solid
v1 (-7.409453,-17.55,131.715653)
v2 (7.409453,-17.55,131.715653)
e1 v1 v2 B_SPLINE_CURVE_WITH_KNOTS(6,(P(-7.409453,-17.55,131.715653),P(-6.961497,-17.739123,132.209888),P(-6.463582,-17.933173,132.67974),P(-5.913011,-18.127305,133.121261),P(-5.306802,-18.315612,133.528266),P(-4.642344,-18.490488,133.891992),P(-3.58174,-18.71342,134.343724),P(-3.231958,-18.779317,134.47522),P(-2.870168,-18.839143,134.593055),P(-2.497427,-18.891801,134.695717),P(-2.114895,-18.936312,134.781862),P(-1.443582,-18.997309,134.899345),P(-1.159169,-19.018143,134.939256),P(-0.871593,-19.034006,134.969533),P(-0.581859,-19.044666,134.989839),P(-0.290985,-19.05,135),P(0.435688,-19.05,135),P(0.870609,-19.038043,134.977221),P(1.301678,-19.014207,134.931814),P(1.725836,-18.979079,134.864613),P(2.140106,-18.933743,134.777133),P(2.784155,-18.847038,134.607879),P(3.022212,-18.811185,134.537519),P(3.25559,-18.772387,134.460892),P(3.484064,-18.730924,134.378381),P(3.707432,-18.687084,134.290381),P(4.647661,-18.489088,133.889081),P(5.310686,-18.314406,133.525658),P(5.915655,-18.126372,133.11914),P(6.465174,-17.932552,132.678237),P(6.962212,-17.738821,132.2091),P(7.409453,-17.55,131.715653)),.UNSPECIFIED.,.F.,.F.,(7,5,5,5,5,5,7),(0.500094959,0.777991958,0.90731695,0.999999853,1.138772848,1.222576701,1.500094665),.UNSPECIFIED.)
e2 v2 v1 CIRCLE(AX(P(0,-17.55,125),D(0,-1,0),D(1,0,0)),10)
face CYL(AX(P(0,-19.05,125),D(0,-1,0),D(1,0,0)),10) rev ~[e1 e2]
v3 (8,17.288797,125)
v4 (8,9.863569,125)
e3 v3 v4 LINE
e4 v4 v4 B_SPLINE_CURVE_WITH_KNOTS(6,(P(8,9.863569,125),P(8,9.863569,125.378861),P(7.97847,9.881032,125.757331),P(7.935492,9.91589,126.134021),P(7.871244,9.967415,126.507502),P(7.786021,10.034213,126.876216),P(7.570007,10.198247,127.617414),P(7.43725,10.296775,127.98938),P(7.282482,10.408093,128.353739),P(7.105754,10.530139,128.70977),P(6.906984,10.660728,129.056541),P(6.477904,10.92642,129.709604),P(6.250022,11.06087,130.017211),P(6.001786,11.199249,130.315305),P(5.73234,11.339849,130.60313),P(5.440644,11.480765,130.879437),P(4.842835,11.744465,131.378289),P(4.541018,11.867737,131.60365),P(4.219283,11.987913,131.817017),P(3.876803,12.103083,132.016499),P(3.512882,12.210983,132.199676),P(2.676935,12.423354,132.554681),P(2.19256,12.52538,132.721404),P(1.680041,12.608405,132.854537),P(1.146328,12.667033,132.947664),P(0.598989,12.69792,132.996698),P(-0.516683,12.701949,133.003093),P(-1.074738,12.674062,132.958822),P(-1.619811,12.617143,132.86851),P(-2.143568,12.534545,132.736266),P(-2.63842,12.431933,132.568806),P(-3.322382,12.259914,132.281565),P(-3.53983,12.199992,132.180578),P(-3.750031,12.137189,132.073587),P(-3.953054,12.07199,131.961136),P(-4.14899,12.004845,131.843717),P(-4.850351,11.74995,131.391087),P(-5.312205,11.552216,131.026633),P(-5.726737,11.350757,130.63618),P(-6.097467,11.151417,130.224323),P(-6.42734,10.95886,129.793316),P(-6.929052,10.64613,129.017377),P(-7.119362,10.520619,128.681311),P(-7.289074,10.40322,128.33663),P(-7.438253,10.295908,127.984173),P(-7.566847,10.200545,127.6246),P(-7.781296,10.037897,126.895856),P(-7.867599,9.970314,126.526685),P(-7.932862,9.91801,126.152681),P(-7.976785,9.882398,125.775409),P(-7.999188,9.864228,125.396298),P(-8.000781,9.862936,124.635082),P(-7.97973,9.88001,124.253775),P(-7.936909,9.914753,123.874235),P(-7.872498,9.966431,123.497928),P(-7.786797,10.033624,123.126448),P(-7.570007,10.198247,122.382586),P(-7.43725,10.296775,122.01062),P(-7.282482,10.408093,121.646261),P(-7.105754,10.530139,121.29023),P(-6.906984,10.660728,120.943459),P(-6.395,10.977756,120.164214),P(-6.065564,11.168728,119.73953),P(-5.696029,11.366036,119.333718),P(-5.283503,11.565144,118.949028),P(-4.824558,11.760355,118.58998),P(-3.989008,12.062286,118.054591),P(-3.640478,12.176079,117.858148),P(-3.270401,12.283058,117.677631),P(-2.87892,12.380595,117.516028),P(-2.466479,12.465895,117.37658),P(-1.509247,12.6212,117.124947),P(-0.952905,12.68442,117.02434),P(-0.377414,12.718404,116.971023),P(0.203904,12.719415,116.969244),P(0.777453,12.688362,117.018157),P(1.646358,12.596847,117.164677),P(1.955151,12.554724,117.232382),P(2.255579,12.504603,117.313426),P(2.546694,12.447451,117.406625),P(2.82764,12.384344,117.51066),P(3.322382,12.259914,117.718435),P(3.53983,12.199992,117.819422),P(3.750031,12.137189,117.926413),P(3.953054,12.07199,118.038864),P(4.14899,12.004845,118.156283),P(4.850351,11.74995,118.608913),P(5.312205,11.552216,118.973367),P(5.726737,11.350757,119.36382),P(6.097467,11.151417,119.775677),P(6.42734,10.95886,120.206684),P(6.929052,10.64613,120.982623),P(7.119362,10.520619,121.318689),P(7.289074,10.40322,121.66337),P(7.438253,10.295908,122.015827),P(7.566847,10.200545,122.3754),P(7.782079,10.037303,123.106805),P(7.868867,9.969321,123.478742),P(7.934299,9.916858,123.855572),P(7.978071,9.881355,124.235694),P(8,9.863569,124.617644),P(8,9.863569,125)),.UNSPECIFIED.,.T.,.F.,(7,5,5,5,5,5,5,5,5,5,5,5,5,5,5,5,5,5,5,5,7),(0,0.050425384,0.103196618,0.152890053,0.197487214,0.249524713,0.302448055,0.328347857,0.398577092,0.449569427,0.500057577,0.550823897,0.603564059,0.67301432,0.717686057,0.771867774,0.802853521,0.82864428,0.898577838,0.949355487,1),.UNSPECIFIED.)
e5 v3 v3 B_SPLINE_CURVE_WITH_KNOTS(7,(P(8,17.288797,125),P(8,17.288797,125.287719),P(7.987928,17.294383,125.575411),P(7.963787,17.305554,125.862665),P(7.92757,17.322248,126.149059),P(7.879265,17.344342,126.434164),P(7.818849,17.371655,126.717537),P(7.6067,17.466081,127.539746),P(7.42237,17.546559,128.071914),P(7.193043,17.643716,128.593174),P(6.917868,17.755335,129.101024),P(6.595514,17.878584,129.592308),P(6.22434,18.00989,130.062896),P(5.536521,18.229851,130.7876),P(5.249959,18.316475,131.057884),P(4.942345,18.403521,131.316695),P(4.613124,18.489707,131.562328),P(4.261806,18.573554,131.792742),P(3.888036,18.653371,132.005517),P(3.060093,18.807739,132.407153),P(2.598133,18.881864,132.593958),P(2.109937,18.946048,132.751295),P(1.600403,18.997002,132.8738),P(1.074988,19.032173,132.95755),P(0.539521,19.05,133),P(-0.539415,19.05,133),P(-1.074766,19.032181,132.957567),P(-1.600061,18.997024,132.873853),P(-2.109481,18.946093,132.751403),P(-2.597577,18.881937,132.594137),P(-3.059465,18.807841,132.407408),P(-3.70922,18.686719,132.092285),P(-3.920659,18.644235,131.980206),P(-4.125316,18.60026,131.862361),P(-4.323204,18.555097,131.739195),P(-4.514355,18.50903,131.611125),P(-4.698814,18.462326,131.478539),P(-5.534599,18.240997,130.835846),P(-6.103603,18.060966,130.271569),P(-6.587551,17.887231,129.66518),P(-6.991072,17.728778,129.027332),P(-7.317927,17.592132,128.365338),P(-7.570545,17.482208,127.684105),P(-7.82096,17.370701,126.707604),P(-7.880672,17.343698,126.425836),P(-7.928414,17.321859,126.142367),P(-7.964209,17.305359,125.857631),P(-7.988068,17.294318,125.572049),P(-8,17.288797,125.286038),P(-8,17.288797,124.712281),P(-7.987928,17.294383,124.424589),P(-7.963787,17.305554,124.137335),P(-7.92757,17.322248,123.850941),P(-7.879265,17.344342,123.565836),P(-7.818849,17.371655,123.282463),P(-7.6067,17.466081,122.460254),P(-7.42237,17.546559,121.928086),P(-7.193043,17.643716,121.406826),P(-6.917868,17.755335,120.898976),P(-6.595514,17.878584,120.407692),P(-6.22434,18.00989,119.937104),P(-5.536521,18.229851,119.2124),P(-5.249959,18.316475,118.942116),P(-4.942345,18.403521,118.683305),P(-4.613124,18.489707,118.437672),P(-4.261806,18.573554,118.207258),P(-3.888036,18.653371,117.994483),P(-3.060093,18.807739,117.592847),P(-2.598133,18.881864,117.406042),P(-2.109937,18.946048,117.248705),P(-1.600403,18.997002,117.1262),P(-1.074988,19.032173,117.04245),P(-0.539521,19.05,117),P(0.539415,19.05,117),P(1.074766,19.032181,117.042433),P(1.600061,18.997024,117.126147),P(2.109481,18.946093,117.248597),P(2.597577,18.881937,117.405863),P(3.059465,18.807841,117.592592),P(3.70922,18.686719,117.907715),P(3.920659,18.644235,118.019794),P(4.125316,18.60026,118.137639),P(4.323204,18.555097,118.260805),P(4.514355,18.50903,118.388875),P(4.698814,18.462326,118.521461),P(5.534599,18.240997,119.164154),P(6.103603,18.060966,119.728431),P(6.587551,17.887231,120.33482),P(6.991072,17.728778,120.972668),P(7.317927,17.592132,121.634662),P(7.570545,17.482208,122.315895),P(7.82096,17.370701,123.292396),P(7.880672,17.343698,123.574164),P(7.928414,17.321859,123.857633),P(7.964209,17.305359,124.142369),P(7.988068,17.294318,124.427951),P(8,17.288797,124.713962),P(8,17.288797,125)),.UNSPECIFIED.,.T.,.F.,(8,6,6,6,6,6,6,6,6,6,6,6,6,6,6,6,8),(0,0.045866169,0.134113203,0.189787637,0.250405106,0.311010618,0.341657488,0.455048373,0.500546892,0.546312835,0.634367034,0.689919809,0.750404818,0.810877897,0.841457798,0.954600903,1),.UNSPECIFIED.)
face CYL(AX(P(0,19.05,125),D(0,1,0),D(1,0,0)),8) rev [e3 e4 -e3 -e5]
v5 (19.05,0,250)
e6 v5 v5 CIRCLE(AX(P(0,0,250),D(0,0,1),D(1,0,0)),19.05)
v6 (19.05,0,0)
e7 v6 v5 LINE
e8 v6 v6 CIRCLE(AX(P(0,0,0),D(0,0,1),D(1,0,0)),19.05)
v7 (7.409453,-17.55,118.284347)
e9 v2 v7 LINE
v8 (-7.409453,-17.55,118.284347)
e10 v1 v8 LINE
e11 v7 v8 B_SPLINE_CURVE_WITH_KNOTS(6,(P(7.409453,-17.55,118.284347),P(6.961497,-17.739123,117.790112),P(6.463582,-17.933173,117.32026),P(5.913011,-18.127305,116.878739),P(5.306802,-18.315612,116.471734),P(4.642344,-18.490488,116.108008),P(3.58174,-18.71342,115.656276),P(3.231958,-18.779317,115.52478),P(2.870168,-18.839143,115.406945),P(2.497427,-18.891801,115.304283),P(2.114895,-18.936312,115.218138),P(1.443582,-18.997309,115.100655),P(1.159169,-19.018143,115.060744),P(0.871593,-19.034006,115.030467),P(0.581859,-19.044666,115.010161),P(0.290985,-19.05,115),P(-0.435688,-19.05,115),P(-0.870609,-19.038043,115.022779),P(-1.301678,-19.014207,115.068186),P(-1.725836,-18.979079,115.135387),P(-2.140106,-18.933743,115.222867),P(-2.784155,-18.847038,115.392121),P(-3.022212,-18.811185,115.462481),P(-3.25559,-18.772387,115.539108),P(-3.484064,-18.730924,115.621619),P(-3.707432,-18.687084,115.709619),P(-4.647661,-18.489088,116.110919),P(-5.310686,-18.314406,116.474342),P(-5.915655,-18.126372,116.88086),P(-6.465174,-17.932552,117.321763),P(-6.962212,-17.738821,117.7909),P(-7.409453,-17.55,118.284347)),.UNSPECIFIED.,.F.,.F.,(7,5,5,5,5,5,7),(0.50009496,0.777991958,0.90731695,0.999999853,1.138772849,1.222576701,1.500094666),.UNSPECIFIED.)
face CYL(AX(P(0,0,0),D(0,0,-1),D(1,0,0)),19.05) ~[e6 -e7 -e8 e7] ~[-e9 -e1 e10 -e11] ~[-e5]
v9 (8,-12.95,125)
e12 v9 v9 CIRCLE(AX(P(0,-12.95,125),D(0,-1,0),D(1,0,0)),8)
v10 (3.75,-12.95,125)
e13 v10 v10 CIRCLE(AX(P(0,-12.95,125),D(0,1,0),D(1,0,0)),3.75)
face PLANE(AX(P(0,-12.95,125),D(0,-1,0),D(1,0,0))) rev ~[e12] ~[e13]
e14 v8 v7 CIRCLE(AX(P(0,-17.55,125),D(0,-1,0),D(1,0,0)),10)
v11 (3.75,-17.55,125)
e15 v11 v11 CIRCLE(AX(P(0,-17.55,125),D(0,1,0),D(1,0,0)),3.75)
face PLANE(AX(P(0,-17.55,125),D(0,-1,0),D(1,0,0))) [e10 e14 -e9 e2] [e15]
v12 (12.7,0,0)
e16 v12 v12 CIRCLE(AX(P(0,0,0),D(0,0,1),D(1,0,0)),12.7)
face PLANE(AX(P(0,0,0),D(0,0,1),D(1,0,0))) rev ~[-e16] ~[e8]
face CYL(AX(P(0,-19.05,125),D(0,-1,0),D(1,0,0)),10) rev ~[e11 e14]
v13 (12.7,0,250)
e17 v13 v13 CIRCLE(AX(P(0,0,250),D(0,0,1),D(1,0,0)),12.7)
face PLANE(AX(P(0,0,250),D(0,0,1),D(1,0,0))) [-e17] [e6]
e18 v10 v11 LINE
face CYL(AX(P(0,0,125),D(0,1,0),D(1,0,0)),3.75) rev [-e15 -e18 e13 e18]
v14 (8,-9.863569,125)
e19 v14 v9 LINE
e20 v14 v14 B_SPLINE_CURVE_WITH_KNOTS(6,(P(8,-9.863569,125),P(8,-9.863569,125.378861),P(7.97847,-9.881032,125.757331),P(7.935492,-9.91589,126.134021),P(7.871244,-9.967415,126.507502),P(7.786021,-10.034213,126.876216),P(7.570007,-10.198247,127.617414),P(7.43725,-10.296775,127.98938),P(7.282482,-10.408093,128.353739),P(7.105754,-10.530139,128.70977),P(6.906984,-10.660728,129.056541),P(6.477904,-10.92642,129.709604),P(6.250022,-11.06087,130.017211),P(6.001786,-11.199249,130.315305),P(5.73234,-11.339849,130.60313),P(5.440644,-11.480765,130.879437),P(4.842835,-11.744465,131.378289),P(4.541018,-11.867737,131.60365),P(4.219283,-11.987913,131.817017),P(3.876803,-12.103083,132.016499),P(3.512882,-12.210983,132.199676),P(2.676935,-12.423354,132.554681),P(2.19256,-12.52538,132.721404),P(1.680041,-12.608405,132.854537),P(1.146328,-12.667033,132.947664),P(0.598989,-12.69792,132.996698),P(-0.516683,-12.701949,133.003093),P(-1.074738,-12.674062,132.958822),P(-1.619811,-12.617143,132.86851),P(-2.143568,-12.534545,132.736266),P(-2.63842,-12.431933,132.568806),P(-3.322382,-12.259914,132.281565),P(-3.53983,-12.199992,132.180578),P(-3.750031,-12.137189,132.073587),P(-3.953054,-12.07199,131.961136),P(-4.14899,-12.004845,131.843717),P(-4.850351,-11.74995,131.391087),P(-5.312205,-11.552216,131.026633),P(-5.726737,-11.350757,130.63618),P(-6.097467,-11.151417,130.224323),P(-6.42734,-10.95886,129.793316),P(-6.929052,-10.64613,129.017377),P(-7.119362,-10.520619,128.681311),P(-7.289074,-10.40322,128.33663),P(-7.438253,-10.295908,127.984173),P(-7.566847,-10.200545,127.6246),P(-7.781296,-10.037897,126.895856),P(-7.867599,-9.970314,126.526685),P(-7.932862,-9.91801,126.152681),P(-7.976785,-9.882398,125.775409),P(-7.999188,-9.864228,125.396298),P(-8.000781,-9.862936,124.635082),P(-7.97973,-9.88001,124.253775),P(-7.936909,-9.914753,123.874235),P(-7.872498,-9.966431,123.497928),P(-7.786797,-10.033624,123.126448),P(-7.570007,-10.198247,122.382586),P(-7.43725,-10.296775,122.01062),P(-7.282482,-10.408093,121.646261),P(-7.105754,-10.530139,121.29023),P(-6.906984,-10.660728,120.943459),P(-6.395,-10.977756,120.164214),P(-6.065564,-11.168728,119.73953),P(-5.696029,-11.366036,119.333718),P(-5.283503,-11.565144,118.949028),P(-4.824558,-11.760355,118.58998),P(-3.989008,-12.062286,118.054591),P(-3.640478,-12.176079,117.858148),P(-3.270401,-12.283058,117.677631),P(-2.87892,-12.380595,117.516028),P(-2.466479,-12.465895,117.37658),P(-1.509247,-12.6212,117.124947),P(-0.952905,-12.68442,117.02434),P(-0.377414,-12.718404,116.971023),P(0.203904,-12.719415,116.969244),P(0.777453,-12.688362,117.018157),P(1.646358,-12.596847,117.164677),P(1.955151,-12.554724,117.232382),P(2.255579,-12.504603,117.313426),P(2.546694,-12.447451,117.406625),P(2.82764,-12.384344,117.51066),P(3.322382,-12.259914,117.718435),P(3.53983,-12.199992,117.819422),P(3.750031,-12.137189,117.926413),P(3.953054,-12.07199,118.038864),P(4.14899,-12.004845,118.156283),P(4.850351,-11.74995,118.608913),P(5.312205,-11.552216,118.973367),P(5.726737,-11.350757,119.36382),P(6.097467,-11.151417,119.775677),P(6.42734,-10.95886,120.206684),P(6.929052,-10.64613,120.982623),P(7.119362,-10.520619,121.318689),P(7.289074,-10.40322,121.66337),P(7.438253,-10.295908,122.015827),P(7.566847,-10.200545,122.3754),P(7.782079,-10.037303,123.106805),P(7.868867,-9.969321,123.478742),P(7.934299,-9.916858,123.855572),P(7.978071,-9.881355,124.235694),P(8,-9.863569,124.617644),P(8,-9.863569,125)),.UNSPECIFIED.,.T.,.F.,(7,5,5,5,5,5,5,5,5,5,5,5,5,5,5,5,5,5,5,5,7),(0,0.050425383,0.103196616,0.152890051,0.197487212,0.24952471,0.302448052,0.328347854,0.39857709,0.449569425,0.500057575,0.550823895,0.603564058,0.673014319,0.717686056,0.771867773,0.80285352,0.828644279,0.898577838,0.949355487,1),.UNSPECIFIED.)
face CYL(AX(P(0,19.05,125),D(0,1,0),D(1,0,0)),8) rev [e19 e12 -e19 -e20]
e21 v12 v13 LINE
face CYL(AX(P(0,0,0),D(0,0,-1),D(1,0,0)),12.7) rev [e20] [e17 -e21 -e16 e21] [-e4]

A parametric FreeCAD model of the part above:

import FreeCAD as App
import Part
import Sketcher

doc = App.newDocument("Part")
body = doc.addObject("PartDesign::Body", "Body")

# Sketch on XY plane
sketch1 = doc.addObject("Sketcher::SketchObject", "Sketch")
body.addObject(sketch1)
sketch1.AttachmentSupport = (doc.XY_Plane, [""])
sketch1.MapMode = "FlatFace"
sketch1.addGeometry([
    Part.Circle(App.Vector(0, 0, 0), App.Vector(0, 0, 1), 19),
    Part.Circle(App.Vector(0, 0, 0), App.Vector(0, 0, 1), 13),
], False)
sketch1.addConstraint([
    Sketcher.Constraint("Coincident", 0, 3, -1, 1),
    Sketcher.Constraint("Coincident", 1, 3, -1, 1),
    Sketcher.Constraint("Diameter", 0, 38.1),
    Sketcher.Constraint("Diameter", 1, 25.4),
])
pad1 = doc.addObject("PartDesign::Pad", "Pad")
body.addObject(pad1)
pad1.Profile = sketch1
pad1.Length = 250

# Sketch on XZ plane
sketch2 = doc.addObject("Sketcher::SketchObject", "Sketch001")
body.addObject(sketch2)
sketch2.AttachmentSupport = (doc.XZ_Plane, [""])
sketch2.MapMode = "FlatFace"
sketch2.addGeometry(Part.Circle(App.Vector(0, 125, 0), App.Vector(0, 0, 1), 3.8), False)
sketch2.addConstraint([
    Sketcher.Constraint("PointOnObject", 0, 3, -2),
    Sketcher.Constraint("Diameter", 0, 7.5),
    Sketcher.Constraint("DistanceY", -1, 1, 0, 3, 125.0),
])
pocket1 = doc.addObject("PartDesign::Pocket", "Pocket")
body.addObject(pocket1)
pocket1.Profile = sketch2
pocket1.Type = "ThroughAll"

# Sketch on XZ plane
sketch3 = doc.addObject("Sketcher::SketchObject", "Sketch002")
body.addObject(sketch3)
sketch3.AttachmentSupport = (doc.XZ_Plane, [""])
sketch3.MapMode = "FlatFace"
sketch3.addGeometry(Part.Circle(App.Vector(0, 125, 0), App.Vector(0, 0, 1), 3.8), False)
sketch3.addConstraint([
    Sketcher.Constraint("PointOnObject", 0, 3, -2),
    Sketcher.Constraint("Diameter", 0, 7.5),
    Sketcher.Constraint("DistanceY", -1, 1, 0, 3, 125.0),
])
pocket2 = doc.addObject("PartDesign::Pocket", "Pocket001")
body.addObject(pocket2)
pocket2.Profile = sketch3
pocket2.Type = "ThroughAll"
pocket2.Reversed = True

# Sketch on XZ plane
sketch4 = doc.addObject("Sketcher::SketchObject", "Sketch003")
body.addObject(sketch4)
sketch4.AttachmentSupport = (doc.XZ_Plane, [""])
sketch4.MapMode = "FlatFace"
sketch4.AttachmentOffset = App.Placement(App.Vector(0, 0, -19.05), App.Rotation())
sketch4.addGeometry(Part.Circle(App.Vector(0, 125, 0), App.Vector(0, 0, 1), 8), False)
sketch4.addConstraint([
    Sketcher.Constraint("PointOnObject", 0, 3, -2),
    Sketcher.Constraint("Diameter", 0, 16.0),
    Sketcher.Constraint("DistanceY", -1, 1, 0, 3, 125.0),
])
pocket3 = doc.addObject("PartDesign::Pocket", "Pocket002")
body.addObject(pocket3)
pocket3.Profile = sketch4
pocket3.Length = 32
pocket3.Reversed = True

# Sketch on XZ plane
sketch5 = doc.addObject("Sketcher::SketchObject", "Sketch004")
body.addObject(sketch5)
sketch5.AttachmentSupport = (doc.XZ_Plane, [""])
sketch5.MapMode = "FlatFace"
sketch5.AttachmentOffset = App.Placement(App.Vector(0, 0, 19.05), App.Rotation())
sketch5.addGeometry(Part.Circle(App.Vector(0, 125, 0), App.Vector(0, 0, 1), 10), False)
sketch5.addConstraint([
    Sketcher.Constraint("PointOnObject", 0, 3, -2),
    Sketcher.Constraint("Diameter", 0, 20.0),
    Sketcher.Constraint("DistanceY", -1, 1, 0, 3, 125.0),
])
pocket4 = doc.addObject("PartDesign::Pocket", "Pocket003")
body.addObject(pocket4)
pocket4.Profile = sketch5
pocket4.Length = 1.5

doc.recompute()
